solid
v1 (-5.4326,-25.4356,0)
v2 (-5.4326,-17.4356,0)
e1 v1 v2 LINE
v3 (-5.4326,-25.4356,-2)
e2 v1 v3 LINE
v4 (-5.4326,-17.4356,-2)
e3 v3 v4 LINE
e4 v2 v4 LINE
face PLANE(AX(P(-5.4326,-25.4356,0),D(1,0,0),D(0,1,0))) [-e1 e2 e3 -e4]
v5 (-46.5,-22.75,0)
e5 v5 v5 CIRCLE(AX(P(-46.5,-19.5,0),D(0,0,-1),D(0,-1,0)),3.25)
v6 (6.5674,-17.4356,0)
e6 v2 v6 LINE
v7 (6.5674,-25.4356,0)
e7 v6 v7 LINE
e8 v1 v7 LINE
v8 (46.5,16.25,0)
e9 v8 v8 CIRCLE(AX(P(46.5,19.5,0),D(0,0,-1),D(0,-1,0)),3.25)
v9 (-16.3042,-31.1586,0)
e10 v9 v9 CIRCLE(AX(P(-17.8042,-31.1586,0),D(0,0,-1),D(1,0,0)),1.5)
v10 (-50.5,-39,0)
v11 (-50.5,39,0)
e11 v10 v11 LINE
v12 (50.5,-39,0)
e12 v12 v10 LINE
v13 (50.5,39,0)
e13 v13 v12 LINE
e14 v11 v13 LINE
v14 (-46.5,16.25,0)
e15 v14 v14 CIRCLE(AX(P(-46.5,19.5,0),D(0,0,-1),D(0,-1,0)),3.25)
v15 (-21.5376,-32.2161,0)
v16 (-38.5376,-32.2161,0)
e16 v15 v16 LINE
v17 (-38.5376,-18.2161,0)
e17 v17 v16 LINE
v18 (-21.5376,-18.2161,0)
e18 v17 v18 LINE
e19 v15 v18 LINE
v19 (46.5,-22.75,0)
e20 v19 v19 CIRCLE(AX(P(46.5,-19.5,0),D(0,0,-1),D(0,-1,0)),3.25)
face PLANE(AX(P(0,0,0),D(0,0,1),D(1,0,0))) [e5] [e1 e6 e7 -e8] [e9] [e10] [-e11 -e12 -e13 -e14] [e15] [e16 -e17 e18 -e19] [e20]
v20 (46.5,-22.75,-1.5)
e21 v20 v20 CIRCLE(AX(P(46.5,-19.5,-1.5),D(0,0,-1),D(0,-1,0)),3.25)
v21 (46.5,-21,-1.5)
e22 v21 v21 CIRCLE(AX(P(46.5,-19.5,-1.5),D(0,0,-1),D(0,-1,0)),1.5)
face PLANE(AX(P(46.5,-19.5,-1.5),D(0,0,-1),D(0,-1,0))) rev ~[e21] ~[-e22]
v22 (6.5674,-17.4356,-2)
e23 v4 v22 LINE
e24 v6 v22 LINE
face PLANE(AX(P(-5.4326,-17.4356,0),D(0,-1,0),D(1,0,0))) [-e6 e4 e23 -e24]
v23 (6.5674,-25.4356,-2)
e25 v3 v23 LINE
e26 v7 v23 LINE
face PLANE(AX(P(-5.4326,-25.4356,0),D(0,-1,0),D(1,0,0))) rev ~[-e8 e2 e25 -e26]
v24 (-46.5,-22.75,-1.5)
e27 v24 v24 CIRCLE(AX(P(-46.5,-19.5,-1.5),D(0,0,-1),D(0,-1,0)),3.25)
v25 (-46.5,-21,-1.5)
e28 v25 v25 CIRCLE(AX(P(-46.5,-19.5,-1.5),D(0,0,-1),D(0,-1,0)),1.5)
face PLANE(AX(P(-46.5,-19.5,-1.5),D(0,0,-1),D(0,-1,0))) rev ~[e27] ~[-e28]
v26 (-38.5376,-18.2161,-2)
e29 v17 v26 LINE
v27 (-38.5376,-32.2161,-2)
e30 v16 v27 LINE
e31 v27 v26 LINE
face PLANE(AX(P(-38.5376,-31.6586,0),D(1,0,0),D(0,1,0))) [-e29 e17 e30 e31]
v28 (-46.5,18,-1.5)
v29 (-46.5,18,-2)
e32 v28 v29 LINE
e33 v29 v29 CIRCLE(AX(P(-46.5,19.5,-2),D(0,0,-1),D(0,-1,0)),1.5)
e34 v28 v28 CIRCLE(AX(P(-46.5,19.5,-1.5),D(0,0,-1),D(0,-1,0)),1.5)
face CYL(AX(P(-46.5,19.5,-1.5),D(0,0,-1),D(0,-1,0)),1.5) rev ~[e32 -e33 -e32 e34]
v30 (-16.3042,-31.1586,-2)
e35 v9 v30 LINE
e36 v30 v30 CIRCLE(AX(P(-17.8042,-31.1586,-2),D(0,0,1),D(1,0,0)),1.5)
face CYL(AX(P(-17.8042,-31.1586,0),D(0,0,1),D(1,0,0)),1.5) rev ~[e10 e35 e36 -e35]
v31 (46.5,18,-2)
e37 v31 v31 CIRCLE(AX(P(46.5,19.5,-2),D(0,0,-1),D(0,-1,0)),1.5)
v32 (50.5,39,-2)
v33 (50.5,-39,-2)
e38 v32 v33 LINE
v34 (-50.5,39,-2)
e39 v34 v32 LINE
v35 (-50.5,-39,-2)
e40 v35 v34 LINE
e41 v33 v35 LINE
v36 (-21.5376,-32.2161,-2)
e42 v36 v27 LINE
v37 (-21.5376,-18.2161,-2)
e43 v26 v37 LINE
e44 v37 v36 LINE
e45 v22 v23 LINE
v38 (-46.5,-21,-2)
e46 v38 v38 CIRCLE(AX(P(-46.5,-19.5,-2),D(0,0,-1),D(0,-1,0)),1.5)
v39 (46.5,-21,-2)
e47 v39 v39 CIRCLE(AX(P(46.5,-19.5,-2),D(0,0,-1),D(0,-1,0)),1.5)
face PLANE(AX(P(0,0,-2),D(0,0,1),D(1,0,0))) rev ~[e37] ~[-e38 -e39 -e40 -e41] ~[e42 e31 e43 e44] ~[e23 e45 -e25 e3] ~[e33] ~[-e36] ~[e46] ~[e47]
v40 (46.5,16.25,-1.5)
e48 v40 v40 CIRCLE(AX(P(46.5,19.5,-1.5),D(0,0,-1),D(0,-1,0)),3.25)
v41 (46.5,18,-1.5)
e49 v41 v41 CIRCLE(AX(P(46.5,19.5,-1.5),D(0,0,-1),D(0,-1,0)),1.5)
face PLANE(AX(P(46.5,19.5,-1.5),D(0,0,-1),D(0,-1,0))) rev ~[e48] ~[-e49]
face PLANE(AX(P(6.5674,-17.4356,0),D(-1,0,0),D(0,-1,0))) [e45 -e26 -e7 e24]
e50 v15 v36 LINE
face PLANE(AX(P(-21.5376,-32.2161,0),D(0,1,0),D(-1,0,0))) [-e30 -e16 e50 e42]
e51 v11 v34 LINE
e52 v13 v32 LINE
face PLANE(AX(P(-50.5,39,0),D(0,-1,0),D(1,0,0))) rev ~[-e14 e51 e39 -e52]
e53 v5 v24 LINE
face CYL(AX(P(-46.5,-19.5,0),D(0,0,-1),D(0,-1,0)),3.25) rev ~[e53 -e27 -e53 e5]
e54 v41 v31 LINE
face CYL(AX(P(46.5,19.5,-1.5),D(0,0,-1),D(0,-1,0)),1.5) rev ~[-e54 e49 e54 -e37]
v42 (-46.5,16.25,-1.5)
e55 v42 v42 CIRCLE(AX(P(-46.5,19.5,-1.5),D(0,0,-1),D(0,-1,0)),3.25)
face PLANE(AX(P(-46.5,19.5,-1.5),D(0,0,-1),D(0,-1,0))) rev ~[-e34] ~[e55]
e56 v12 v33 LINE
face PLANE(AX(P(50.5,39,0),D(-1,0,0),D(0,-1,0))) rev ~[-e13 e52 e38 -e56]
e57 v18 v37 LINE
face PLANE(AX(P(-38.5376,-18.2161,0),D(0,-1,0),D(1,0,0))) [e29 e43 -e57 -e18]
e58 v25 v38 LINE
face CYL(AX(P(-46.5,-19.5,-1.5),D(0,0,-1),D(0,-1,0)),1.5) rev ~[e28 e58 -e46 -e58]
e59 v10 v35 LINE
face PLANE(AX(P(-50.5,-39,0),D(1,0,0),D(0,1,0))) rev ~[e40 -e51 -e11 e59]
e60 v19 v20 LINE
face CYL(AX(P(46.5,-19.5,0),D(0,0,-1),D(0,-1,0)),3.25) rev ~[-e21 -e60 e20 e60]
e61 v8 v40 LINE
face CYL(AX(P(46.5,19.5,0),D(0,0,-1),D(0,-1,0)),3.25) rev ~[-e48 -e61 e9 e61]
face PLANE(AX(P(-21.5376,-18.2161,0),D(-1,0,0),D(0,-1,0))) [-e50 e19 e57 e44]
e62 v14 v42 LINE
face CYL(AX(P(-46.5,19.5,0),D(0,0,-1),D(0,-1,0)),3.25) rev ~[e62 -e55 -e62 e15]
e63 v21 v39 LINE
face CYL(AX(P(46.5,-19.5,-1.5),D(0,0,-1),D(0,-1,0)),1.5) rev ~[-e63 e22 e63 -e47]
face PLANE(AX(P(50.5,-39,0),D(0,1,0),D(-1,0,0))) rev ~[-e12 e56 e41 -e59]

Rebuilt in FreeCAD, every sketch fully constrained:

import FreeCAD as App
import Part
import Sketcher

V = App.Vector

doc = App.newDocument("Part")
body = doc.addObject("PartDesign::Body", "Body")

sketch1 = body.newObject("Sketcher::SketchObject", "Sketch")
sketch1.AttachmentSupport = (doc.getObject("XY_Plane"), [""])
sketch1.MapMode = "FlatFace"
sketch1.addGeometry([
    Part.LineSegment(V(50, 39, 0), V(-50, 39, 0)),
    Part.LineSegment(V(-50, 39, 0), V(-50, -39, 0)),
    Part.LineSegment(V(-50, -39, 0), V(50, -39, 0)),
    Part.LineSegment(V(50, -39, 0), V(50, 39, 0)),
], False)
sketch1.addConstraint([
    Sketcher.Constraint("Coincident", 0, 2, 1, 1),
    Sketcher.Constraint("Coincident", 1, 2, 2, 1),
    Sketcher.Constraint("Coincident", 2, 2, 3, 1),
    Sketcher.Constraint("Coincident", 3, 2, 0, 1),
    Sketcher.Constraint("Horizontal", 0),
    Sketcher.Constraint("Vertical", 1),
    Sketcher.Constraint("Horizontal", 2),
    Sketcher.Constraint("Vertical", 3),
    Sketcher.Constraint("Symmetric", 0, 2, 2, 2, -1, 1),
    Sketcher.Constraint("DistanceX", 0, 2, 0, 1, 101.0),
    Sketcher.Constraint("DistanceY", 1, 2, 1, 1, 78.0),
])
pad1 = body.newObject("PartDesign::Pad", "Pad")
pad1.Profile = sketch1
pad1.Length = 2
pad1.Reversed = True

sketch2 = body.newObject("Sketcher::SketchObject", "Sketch001")
sketch2.AttachmentSupport = (doc.getObject("XY_Plane"), [""])
sketch2.MapMode = "FlatFace"
sketch2.addGeometry([
    Part.Circle(V(-46.5, 19.5, 0), V(0, 0, 1), 1.5),
    Part.Circle(V(-46.5, -19.5, 0), V(0, 0, 1), 1.5),
    Part.Circle(V(46.5, -19.5, 0), V(0, 0, 1), 1.5),
    Part.Circle(V(46.5, 19.5, 0), V(0, 0, 1), 1.5),
], False)
sketch2.addConstraint([
    Sketcher.Constraint("Equal", 0, 1),
    Sketcher.Constraint("Equal", 1, 2),
    Sketcher.Constraint("Equal", 2, 3),
    Sketcher.Constraint("Symmetric", 0, 3, 2, 3, -1, 1),
    Sketcher.Constraint("Symmetric", 1, 3, 3, 3, -1, 1),
    Sketcher.Constraint("Symmetric", 1, 3, 2, 3, -2),
    Sketcher.Constraint("Diameter", 0, 3.0),
    Sketcher.Constraint("DistanceY", 1, 3, 0, 3, 39.0),
    Sketcher.Constraint("DistanceX", 1, 3, 2, 3, 93.0),
])
doc.recompute()
hole = body.newObject("PartDesign::Hole", "Hole")
hole.Profile = sketch2
hole.ThreadType = "None"
hole.Diameter = 3
hole.DepthType = "ThroughAll"
hole.HoleCutType = "Counterbore"
hole.HoleCutDiameter = 6.5
hole.HoleCutDepth = 1.5

sketch3 = body.newObject("Sketcher::SketchObject", "Sketch002")
sketch3.AttachmentSupport = (doc.getObject("XY_Plane"), [""])
sketch3.MapMode = "FlatFace"
sketch3.addGeometry([
    Part.LineSegment(V(-21.5, -18.2, 0), V(-38.5, -18.2, 0)),
    Part.LineSegment(V(-38.5, -18.2, 0), V(-38.5, -32.2, 0)),
    Part.LineSegment(V(-38.5, -32.2, 0), V(-21.5, -32.2, 0)),
    Part.LineSegment(V(-21.5, -32.2, 0), V(-21.5, -18.2, 0)),
    Part.Circle(V(-17.8, -31.2, 0), V(0, 0, 1), 1.5),
    Part.LineSegment(V(-5.4, -17.4, 0), V(-5.4, -25.4, 0)),
    Part.LineSegment(V(-5.4, -25.4, 0), V(6.6, -25.4, 0)),
    Part.LineSegment(V(6.6, -25.4, 0), V(6.6, -17.4, 0)),
    Part.LineSegment(V(6.6, -17.4, 0), V(-5.4, -17.4, 0)),
], False)
sketch3.addConstraint([
    Sketcher.Constraint("Coincident", 0, 2, 1, 1),
    Sketcher.Constraint("Coincident", 1, 2, 2, 1),
    Sketcher.Constraint("Coincident", 2, 2, 3, 1),
    Sketcher.Constraint("Coincident", 3, 2, 0, 1),
    Sketcher.Constraint("Coincident", 5, 2, 6, 1),
    Sketcher.Constraint("Coincident", 6, 2, 7, 1),
    Sketcher.Constraint("Coincident", 7, 2, 8, 1),
    Sketcher.Constraint("Coincident", 8, 2, 5, 1),
    Sketcher.Constraint("Horizontal", 0),
    Sketcher.Constraint("Vertical", 1),
    Sketcher.Constraint("Horizontal", 2),
    Sketcher.Constraint("Vertical", 3),
    Sketcher.Constraint("Vertical", 5),
    Sketcher.Constraint("Horizontal", 6),
    Sketcher.Constraint("Vertical", 7),
    Sketcher.Constraint("Horizontal", 8),
    Sketcher.Constraint("Diameter", 4, 3.0),
    Sketcher.Constraint("DistanceX", 0, 2, 0, 1, 17.0),
    Sketcher.Constraint("DistanceX", 6, 1, 6, 2, 12.0),
    Sketcher.Constraint("DistanceY", 1, 2, 1, 1, 14.0),
    Sketcher.Constraint("DistanceY", 5, 2, 5, 1, 8.0),
    Sketcher.Constraint("DistanceX", 2, 2, 5, 2, 16.105),
    Sketcher.Constraint("DistanceY", 0, 2, -1, 1, 18.216),
    Sketcher.Constraint("DistanceY", 4, 3, 5, 2, 5.723),
    Sketcher.Constraint("DistanceX", 4, 3, -1, 1, 17.8042),
    Sketcher.Constraint("DistanceY", 4, 3, -1, 1, 31.1586),
    Sketcher.Constraint("DistanceX", 0, 2, -1, 1, 38.5376),
])
pocket1 = body.newObject("PartDesign::Pocket", "Pocket")
pocket1.Profile = sketch3
pocket1.Length = 10

doc.recompute()
